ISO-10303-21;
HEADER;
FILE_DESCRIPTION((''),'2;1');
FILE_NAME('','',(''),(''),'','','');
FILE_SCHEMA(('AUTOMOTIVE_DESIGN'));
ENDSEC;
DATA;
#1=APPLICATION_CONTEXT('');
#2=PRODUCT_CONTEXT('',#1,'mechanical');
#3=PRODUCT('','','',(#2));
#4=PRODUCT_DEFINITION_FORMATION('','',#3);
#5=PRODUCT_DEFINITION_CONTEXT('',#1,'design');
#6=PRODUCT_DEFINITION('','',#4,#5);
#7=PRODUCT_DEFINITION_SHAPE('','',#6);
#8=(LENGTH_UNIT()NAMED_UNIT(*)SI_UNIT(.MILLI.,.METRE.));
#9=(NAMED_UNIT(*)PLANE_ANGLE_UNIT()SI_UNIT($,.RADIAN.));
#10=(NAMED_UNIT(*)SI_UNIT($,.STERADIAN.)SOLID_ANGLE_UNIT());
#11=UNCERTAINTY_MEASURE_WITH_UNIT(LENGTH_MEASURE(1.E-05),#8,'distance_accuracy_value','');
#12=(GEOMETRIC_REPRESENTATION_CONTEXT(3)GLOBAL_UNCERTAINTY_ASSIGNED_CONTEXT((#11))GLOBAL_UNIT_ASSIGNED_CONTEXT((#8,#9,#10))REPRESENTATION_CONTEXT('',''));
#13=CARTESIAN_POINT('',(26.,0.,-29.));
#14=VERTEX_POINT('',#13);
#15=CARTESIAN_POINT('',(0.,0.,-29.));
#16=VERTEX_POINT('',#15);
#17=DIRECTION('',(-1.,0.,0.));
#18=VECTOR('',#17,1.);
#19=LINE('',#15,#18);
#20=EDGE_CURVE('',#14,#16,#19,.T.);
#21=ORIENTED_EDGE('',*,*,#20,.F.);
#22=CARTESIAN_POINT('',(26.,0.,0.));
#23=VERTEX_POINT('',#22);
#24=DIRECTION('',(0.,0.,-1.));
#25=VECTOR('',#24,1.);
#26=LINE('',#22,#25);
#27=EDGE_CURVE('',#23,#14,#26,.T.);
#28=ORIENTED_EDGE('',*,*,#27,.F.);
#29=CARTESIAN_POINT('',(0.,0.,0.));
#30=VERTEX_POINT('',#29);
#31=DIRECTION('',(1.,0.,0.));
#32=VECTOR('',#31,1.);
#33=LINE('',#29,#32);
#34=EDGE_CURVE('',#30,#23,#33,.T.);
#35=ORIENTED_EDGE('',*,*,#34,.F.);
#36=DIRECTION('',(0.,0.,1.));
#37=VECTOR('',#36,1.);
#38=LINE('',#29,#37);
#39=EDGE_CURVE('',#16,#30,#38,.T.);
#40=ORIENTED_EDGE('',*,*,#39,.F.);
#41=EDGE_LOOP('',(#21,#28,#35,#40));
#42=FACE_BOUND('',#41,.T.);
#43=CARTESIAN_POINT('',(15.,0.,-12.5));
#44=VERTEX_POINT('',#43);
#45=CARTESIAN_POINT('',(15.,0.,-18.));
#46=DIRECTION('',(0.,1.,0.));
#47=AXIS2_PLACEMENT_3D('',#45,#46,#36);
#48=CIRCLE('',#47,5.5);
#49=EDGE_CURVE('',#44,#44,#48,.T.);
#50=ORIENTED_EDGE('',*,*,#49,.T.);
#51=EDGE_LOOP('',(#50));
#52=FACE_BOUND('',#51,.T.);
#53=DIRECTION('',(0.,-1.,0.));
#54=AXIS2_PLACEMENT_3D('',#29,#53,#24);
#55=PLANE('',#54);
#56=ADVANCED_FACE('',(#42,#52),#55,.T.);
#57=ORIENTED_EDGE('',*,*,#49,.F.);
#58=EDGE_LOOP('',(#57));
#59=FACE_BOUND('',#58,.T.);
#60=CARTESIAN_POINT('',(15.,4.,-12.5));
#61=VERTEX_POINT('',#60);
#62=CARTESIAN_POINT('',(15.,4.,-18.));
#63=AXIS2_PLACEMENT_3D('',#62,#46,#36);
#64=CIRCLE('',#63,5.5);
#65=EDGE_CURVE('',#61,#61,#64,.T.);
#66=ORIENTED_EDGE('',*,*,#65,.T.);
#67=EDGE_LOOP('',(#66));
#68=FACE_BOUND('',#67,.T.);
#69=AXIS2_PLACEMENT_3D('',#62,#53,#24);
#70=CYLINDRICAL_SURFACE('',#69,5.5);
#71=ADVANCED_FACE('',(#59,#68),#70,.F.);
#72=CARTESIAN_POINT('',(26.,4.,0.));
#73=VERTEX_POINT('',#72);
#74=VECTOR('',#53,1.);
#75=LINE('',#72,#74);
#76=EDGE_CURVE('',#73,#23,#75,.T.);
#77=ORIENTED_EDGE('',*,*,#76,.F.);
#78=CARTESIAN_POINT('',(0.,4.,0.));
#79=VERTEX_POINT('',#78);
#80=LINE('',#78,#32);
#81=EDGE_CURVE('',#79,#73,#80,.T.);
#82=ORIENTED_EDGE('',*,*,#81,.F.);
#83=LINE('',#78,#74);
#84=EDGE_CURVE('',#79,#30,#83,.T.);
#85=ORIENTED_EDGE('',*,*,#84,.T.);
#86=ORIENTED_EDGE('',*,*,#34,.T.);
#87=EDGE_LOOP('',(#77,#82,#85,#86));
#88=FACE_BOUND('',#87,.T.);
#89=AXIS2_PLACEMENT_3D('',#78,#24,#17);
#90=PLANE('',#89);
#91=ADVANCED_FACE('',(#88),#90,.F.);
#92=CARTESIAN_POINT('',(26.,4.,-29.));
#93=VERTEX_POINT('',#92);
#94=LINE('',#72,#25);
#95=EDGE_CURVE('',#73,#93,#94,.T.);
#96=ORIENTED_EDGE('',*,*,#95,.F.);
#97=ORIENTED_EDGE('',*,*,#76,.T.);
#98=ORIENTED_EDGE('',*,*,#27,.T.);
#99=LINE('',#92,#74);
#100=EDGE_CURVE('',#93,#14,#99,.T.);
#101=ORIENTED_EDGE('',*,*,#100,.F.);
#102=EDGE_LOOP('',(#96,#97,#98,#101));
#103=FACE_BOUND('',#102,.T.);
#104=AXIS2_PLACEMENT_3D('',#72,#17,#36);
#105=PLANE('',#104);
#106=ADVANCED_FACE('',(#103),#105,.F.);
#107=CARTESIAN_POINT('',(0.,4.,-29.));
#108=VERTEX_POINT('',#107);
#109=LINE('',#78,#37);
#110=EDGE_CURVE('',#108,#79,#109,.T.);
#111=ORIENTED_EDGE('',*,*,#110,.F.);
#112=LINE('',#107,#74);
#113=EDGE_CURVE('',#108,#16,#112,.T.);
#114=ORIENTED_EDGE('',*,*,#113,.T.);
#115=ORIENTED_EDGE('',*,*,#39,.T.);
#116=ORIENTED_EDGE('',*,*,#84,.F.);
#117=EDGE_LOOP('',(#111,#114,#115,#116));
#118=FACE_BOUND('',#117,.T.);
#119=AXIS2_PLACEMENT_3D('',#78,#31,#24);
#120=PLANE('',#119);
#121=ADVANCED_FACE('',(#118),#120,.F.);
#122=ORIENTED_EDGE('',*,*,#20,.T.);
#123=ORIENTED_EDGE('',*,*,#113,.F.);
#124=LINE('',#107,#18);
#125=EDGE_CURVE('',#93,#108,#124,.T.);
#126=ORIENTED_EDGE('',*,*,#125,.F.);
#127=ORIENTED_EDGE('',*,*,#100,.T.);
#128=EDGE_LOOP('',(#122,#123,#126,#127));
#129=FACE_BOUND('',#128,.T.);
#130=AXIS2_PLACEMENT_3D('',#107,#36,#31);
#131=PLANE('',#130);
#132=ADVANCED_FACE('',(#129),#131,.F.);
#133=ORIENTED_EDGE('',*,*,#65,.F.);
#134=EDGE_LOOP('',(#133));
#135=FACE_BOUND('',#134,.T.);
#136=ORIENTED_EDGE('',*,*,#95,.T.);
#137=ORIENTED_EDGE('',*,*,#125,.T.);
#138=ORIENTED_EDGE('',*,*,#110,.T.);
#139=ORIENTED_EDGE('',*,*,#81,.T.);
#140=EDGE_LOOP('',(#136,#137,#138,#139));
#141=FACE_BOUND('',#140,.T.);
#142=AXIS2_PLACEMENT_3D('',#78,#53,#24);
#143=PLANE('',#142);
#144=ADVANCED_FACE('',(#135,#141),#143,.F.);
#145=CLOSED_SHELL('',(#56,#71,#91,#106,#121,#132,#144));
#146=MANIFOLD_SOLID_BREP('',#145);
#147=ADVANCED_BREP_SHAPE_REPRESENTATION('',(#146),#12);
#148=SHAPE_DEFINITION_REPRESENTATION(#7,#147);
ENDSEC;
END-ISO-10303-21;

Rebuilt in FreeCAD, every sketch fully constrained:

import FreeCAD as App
import Part
import Sketcher
Q = App.Units.Quantity

doc = App.newDocument("Part")
body = doc.addObject("PartDesign::Body", "Body")

# Sketch on XZ plane
sketch1 = body.newObject("Sketcher::SketchObject", "Sketch")
sketch1.AttachmentSupport = (doc.getObject("XZ_Plane"), [""])
sketch1.MapMode = "FlatFace"
sketch1.addGeometry(Part.LineSegment(App.Vector(0, -29, 0), App.Vector(0, 0, 0)), False)
sketch1.addGeometry(Part.LineSegment(App.Vector(0, 0, 0), App.Vector(26, 0, 0)), False)
sketch1.addGeometry(Part.LineSegment(App.Vector(26, 0, 0), App.Vector(26, -29, 0)), False)
sketch1.addGeometry(Part.LineSegment(App.Vector(26, -29, 0), App.Vector(0, -29, 0)), False)
sketch1.addGeometry(Part.Circle(App.Vector(15, -18, 0), App.Vector(0, 0, 1), 5.5), False)
sketch1.addConstraint(Sketcher.Constraint("Coincident", 0, 2, 1, 1))
sketch1.addConstraint(Sketcher.Constraint("Coincident", 1, 2, 2, 1))
sketch1.addConstraint(Sketcher.Constraint("Coincident", 2, 2, 3, 1))
sketch1.addConstraint(Sketcher.Constraint("Coincident", 3, 2, 0, 1))
sketch1.addConstraint(Sketcher.Constraint("Vertical", 0))
sketch1.addConstraint(Sketcher.Constraint("Horizontal", 1))
sketch1.addConstraint(Sketcher.Constraint("Vertical", 2))
sketch1.addConstraint(Sketcher.Constraint("Horizontal", 3))
sketch1.addConstraint(Sketcher.Constraint("Coincident", 0, 2, -1, 1))
sketch1.addConstraint(Sketcher.Constraint("Diameter", 4, Q("11 mm")))
sketch1.addConstraint(Sketcher.Constraint("DistanceX", 1, 1, 1, 2, Q("26 mm")))
sketch1.addConstraint(Sketcher.Constraint("DistanceY", 0, 1, 0, 2, Q("29 mm")))
sketch1.addConstraint(Sketcher.Constraint("DistanceX", -1, 1, 4, 3, Q("15 mm")))
sketch1.addConstraint(Sketcher.Constraint("DistanceY", 4, 3, -1, 1, Q("18 mm")))
pad1 = body.newObject("PartDesign::Pad", "Pad")
pad1.Profile = sketch1
pad1.Length = 4
pad1.Reversed = True

doc.recompute()
